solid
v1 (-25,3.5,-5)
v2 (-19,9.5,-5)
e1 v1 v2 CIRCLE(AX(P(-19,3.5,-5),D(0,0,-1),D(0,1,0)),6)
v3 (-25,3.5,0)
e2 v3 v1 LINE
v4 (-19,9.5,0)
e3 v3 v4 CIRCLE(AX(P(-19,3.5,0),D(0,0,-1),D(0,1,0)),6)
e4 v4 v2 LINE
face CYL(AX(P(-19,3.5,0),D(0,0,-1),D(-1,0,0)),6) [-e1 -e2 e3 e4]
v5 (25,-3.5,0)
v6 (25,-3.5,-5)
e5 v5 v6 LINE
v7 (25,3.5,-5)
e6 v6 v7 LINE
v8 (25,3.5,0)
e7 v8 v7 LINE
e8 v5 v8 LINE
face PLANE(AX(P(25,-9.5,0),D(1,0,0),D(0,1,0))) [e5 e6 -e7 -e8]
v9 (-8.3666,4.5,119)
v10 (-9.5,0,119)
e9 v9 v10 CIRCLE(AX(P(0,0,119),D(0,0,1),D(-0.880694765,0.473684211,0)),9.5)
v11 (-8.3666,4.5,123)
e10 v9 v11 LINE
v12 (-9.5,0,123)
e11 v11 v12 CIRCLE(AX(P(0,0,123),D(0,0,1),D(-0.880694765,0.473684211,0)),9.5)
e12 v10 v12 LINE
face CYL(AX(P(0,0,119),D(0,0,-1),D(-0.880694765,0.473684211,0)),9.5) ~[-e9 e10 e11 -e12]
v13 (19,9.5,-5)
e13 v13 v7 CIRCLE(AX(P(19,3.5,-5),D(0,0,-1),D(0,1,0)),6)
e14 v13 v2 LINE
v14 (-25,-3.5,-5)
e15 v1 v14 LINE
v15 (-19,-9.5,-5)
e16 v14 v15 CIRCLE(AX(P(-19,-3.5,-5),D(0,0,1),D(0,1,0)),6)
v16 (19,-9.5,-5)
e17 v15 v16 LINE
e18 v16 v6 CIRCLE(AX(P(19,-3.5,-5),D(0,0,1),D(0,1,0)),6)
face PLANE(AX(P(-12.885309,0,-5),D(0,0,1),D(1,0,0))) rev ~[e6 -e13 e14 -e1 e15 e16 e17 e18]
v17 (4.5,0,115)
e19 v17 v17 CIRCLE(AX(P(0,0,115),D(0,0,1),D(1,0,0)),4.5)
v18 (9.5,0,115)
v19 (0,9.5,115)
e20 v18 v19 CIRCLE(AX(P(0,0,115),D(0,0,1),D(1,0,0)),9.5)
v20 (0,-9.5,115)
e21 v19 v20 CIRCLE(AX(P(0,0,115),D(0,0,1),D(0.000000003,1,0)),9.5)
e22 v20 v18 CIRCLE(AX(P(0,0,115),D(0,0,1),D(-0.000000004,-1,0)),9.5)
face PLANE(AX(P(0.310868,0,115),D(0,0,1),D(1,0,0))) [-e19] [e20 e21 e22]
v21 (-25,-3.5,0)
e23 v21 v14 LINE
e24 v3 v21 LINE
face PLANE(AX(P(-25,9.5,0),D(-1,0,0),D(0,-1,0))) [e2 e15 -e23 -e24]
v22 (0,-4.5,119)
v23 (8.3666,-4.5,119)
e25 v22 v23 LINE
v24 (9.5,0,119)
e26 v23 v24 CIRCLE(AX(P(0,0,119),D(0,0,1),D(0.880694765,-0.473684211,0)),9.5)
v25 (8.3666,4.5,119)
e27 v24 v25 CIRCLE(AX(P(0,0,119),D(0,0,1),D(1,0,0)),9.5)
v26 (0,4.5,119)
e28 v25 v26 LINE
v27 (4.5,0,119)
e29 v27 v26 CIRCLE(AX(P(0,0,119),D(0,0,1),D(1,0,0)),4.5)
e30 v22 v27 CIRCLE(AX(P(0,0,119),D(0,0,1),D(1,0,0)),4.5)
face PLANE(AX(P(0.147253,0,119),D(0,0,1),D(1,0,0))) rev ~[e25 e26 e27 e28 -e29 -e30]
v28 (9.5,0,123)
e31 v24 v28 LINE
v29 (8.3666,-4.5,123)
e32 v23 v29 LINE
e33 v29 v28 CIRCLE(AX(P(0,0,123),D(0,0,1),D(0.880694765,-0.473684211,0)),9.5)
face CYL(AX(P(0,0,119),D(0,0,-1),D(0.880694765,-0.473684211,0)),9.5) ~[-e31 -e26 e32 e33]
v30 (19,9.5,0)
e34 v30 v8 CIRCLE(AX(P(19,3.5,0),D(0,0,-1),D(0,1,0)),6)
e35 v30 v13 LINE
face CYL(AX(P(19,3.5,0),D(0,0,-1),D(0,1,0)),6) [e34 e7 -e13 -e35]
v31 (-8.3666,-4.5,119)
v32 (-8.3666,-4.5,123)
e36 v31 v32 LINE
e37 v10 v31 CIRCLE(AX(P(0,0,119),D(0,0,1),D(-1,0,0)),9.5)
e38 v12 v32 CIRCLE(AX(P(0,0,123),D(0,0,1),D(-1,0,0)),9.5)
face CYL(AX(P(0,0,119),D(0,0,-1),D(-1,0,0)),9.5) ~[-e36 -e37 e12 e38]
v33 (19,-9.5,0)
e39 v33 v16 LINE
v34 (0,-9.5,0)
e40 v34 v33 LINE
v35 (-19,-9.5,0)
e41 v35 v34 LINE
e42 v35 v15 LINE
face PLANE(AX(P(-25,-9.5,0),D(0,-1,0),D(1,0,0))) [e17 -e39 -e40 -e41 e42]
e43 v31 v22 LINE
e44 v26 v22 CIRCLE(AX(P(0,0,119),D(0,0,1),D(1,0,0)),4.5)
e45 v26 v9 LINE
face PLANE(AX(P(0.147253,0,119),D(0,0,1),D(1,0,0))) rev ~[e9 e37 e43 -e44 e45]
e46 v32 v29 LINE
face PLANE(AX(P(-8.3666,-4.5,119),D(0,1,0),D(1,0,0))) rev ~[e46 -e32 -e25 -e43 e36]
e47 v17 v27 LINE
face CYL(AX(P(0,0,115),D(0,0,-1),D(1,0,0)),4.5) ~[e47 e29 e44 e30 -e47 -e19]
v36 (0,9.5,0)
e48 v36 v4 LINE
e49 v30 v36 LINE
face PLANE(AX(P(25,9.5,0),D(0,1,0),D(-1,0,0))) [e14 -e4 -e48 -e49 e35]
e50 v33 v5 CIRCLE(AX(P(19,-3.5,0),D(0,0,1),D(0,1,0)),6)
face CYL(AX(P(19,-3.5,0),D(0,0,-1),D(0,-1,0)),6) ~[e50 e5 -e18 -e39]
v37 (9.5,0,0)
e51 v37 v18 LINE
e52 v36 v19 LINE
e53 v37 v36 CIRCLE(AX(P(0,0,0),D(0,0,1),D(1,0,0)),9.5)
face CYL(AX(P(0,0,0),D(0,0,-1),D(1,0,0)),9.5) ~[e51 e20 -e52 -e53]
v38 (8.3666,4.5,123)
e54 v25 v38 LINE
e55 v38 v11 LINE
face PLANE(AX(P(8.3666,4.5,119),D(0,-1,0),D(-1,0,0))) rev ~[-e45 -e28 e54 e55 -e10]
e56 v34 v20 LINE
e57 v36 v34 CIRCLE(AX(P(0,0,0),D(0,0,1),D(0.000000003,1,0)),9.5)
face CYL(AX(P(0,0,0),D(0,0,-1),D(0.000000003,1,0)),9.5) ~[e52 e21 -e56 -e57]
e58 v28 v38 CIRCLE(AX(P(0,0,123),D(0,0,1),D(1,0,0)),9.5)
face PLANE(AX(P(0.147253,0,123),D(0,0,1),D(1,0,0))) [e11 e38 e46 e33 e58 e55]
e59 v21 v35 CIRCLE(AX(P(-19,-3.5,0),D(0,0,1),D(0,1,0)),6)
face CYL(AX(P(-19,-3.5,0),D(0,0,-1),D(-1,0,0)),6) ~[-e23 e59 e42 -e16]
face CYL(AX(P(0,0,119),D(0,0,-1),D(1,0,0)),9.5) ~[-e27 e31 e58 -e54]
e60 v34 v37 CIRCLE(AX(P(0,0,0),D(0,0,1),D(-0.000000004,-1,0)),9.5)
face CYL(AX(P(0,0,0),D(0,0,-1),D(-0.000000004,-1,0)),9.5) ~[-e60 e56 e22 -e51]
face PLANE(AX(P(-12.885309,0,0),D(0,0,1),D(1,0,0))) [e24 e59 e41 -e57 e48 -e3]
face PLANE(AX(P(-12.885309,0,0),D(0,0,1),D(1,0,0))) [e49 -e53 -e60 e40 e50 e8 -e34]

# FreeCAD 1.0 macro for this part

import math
import FreeCAD as App
import Part
import Sketcher
from FreeCAD import Vector


def edges_at(feature, points):
    """Names of the edges that pass closest to the given points."""
    edges = feature.Shape.Edges
    near = lambda p: min(range(len(edges)), key=lambda i: edges[i].distToShape(Part.Vertex(*p))[0])
    return sorted({f"Edge{near(p) + 1}" for p in points})

doc = App.newDocument("Part")
body = doc.addObject("PartDesign::Body", "Body")

# Sketch on XY plane
sketch1 = body.newObject("Sketcher::SketchObject", "Sketch")
sketch1.AttachmentSupport = (doc.getObject("XY_Plane"), [""])
sketch1.MapMode = "FlatFace"
sketch1.addGeometry(Part.ArcOfCircle(Part.Circle(Vector(0, 0, 0), Vector(0, 0, 1), 10), math.radians(-90), math.radians(0)), False)
sketch1.addGeometry(Part.ArcOfCircle(Part.Circle(Vector(0, 0, 0), Vector(0, 0, 1), 10), math.radians(0), math.radians(90)), False)
sketch1.addGeometry(Part.ArcOfCircle(Part.Circle(Vector(0, 0, 0), Vector(0, 0, 1), 10), math.radians(90), math.radians(270)), False)
sketch1.addConstraint(Sketcher.Constraint("Tangent", 0, 2, 1, 1))
sketch1.addConstraint(Sketcher.Constraint("Tangent", 1, 2, 2, 1))
sketch1.addConstraint(Sketcher.Constraint("Tangent", 2, 2, 0, 1))
sketch1.addConstraint(Sketcher.Constraint("Coincident", 0, 3, -1, 1))
sketch1.addConstraint(Sketcher.Constraint("PointOnObject", 0, 2, -1))
sketch1.addConstraint(Sketcher.Constraint("PointOnObject", 1, 2, -2))
sketch1.addConstraint(Sketcher.Constraint("PointOnObject", 2, 2, -2))
sketch1.addConstraint(Sketcher.Constraint("Radius", 0, 9.5))
pad1 = body.newObject("PartDesign::Pad", "Pad")
pad1.Profile = sketch1
pad1.Length = 115

# Sketch on XY plane
sketch2 = body.newObject("Sketcher::SketchObject", "Sketch001")
sketch2.AttachmentSupport = (doc.getObject("XY_Plane"), [""])
sketch2.MapMode = "FlatFace"
sketch2.addGeometry(Part.LineSegment(Vector(-25, 10, 0), Vector(-25, -10, 0)), False)
sketch2.addGeometry(Part.LineSegment(Vector(-25, -10, 0), Vector(25, -10, 0)), False)
sketch2.addGeometry(Part.LineSegment(Vector(25, -10, 0), Vector(25, 10, 0)), False)
sketch2.addGeometry(Part.LineSegment(Vector(25, 10, 0), Vector(-25, 10, 0)), False)
sketch2.addConstraint(Sketcher.Constraint("Coincident", 0, 2, 1, 1))
sketch2.addConstraint(Sketcher.Constraint("Coincident", 1, 2, 2, 1))
sketch2.addConstraint(Sketcher.Constraint("Coincident", 2, 2, 3, 1))
sketch2.addConstraint(Sketcher.Constraint("Coincident", 3, 2, 0, 1))
sketch2.addConstraint(Sketcher.Constraint("Vertical", 0))
sketch2.addConstraint(Sketcher.Constraint("Horizontal", 1))
sketch2.addConstraint(Sketcher.Constraint("Vertical", 2))
sketch2.addConstraint(Sketcher.Constraint("Horizontal", 3))
sketch2.addConstraint(Sketcher.Constraint("Symmetric", 0, 2, 2, 2, -1, 1))
sketch2.addConstraint(Sketcher.Constraint("DistanceX", 1, 1, 1, 2, 50.0))
sketch2.addConstraint(Sketcher.Constraint("DistanceY", 0, 2, 0, 1, 19.0))
pad2 = body.newObject("PartDesign::Pad", "Pad001")
pad2.Profile = sketch2
pad2.Length = 5
pad2.Reversed = True
doc.recompute()

fillet = body.newObject("PartDesign::Fillet", "Fillet")
fillet.Base = (pad2, edges_at(pad2, [
    (-25, 9.5, -2.5),
    (-25, -9.5, -2.5),
    (25, 9.5, -2.5),
    (25, -9.5, -2.5),
]))
fillet.Radius = 6

# Sketch on XY plane
sketch3 = body.newObject("Sketcher::SketchObject", "Sketch002")
sketch3.AttachmentSupport = (doc.getObject("XY_Plane"), [""])
sketch3.MapMode = "FlatFace"
sketch3.AttachmentOffset = App.Placement(Vector(0, 0, 115), App.Rotation())
sketch3.addGeometry(Part.Circle(Vector(0, 0, 0), Vector(0, 0, 1), 4.5), False)
sketch3.addConstraint(Sketcher.Constraint("Coincident", 0, 3, -1, 1))
sketch3.addConstraint(Sketcher.Constraint("Diameter", 0, 9.0))
pad3 = body.newObject("PartDesign::Pad", "Pad002")
pad3.Profile = sketch3
pad3.Length = 4

# Sketch on XY plane
sketch4 = body.newObject("Sketcher::SketchObject", "Sketch003")
sketch4.AttachmentSupport = (doc.getObject("XY_Plane"), [""])
sketch4.MapMode = "FlatFace"
sketch4.AttachmentOffset = App.Placement(Vector(0, 0, 119), App.Rotation())
sketch4.addGeometry(Part.ArcOfCircle(Part.Circle(Vector(0, 0, 0), Vector(0, 0, 1), 9.5), math.radians(152), math.radians(180)), False)
sketch4.addGeometry(Part.ArcOfCircle(Part.Circle(Vector(0, 0, 0), Vector(0, 0, 1), 9.5), math.radians(180), math.radians(208)), False)
sketch4.addGeometry(Part.LineSegment(Vector(-8.4, -4.5, 0), Vector(8.4, -4.5, 0)), False)
sketch4.addGeometry(Part.ArcOfCircle(Part.Circle(Vector(0, 0, 0), Vector(0, 0, 1), 9.5), math.radians(-28), math.radians(0)), False)
sketch4.addGeometry(Part.ArcOfCircle(Part.Circle(Vector(0, 0, 0), Vector(0, 0, 1), 9.5), math.radians(0), math.radians(28)), False)
sketch4.addGeometry(Part.LineSegment(Vector(8.4, 4.5, 0), Vector(-8.4, 4.5, 0)), False)
sketch4.addConstraint(Sketcher.Constraint("Tangent", 0, 2, 1, 1))
sketch4.addConstraint(Sketcher.Constraint("Coincident", 1, 2, 2, 1))
sketch4.addConstraint(Sketcher.Constraint("Coincident", 2, 2, 3, 1))
sketch4.addConstraint(Sketcher.Constraint("Tangent", 3, 2, 4, 1))
sketch4.addConstraint(Sketcher.Constraint("Coincident", 4, 2, 5, 1))
sketch4.addConstraint(Sketcher.Constraint("Coincident", 5, 2, 0, 1))
sketch4.addConstraint(Sketcher.Constraint("Horizontal", 2))
sketch4.addConstraint(Sketcher.Constraint("Horizontal", 5))
sketch4.addConstraint(Sketcher.Constraint("Coincident", 0, 3, -1, 1))
sketch4.addConstraint(Sketcher.Constraint("Coincident", 3, 3, -1, 1))
sketch4.addConstraint(Sketcher.Constraint("Equal", 0, 1))
sketch4.addConstraint(Sketcher.Constraint("Equal", 1, 3))
sketch4.addConstraint(Sketcher.Constraint("Equal", 3, 4))
sketch4.addConstraint(Sketcher.Constraint("PointOnObject", 0, 2, -1))
sketch4.addConstraint(Sketcher.Constraint("PointOnObject", 3, 2, -1))
sketch4.addConstraint(Sketcher.Constraint("Vertical", 2, 2, 4, 2))
sketch4.addConstraint(Sketcher.Constraint("Radius", 0, 9.5))
sketch4.addConstraint(Sketcher.Constraint("DistanceY", 2, 2, 4, 2, 9.0))
pad4 = body.newObject("PartDesign::Pad", "Pad003")
pad4.Profile = sketch4
pad4.Length = 4

doc.recompute()
